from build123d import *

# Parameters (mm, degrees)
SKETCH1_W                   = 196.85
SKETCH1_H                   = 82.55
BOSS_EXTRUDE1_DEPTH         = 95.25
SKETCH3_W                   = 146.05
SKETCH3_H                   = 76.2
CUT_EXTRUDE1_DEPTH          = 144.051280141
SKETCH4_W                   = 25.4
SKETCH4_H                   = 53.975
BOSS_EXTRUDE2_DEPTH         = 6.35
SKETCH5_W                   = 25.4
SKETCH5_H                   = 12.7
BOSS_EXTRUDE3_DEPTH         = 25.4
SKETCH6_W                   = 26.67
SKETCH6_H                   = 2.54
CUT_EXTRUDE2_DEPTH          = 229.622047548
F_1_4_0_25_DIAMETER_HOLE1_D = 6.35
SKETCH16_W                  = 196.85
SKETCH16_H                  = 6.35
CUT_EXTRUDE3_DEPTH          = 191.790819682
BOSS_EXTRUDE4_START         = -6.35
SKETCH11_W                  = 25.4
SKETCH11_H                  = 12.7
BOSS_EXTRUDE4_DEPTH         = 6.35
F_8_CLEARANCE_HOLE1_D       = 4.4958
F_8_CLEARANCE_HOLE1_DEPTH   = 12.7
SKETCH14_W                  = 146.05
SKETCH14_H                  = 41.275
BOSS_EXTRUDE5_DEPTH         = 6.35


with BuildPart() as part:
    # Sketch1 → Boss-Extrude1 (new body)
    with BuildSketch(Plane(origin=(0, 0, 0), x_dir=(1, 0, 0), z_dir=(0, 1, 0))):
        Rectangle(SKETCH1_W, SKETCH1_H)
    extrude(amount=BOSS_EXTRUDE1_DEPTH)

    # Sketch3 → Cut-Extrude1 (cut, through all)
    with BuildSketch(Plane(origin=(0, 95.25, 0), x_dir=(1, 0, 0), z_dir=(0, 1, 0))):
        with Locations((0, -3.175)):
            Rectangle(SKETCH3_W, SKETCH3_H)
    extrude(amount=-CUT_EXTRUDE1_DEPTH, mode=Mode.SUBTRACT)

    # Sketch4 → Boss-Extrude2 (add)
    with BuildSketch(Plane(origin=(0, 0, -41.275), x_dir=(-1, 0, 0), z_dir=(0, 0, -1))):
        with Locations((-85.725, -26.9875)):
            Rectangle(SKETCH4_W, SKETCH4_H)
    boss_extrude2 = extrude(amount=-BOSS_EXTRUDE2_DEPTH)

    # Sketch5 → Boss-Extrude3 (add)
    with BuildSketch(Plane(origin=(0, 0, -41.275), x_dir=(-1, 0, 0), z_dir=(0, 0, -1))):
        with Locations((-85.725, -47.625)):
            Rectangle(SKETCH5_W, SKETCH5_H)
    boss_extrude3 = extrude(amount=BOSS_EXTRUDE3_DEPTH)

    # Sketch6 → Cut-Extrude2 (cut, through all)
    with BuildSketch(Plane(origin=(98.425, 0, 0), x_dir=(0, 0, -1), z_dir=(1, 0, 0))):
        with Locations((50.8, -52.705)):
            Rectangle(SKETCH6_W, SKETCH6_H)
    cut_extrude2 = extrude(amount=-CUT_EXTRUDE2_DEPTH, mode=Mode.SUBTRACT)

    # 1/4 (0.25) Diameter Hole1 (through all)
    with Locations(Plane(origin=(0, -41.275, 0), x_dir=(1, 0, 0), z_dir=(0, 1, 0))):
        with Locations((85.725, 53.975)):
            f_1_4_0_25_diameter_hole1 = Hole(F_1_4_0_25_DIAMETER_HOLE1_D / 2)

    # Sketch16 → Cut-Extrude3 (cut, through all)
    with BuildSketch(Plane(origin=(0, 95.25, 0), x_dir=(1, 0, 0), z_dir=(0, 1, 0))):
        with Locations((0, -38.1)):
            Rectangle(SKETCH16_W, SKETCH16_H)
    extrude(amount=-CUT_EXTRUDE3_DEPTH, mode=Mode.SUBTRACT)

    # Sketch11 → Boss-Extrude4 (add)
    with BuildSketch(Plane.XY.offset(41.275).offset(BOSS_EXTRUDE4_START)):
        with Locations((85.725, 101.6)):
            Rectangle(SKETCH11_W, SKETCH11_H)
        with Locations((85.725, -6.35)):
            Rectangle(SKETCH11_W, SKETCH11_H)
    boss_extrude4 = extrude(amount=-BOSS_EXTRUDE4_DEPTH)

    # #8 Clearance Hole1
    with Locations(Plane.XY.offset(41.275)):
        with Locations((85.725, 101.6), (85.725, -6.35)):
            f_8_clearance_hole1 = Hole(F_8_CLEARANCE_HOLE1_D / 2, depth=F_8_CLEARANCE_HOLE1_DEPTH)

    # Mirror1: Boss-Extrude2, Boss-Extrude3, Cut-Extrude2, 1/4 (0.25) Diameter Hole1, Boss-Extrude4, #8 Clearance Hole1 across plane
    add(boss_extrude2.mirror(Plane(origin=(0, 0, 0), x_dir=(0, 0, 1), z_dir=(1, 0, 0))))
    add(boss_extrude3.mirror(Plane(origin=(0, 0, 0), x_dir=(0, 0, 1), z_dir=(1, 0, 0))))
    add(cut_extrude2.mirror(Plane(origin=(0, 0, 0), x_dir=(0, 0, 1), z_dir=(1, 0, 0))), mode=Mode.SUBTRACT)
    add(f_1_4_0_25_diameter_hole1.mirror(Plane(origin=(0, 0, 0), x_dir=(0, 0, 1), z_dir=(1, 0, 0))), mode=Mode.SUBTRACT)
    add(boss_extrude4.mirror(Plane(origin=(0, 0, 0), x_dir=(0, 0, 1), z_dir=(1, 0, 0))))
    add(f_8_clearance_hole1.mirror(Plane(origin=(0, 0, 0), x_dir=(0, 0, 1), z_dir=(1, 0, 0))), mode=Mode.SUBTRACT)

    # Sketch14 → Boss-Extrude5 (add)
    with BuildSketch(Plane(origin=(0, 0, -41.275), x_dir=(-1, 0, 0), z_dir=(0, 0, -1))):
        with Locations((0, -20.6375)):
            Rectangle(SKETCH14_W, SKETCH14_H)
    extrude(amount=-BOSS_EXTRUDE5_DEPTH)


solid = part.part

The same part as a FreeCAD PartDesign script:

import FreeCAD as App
import Part
import Sketcher
from FreeCAD import Vector
Q = App.Units.Quantity

doc = App.newDocument("Part")
body = doc.addObject("PartDesign::Body", "Body")

sketch1 = doc.addObject("Sketcher::SketchObject", "Sketch")
body.addObject(sketch1)
sketch1.AttachmentSupport = (doc.XZ_Plane, [""])
sketch1.MapMode = "FlatFace"
sketch1.addGeometry(Part.LineSegment(Vector(-98, -41, 0), Vector(-98, 41, 0)), False)
sketch1.addGeometry(Part.LineSegment(Vector(-98, 41, 0), Vector(98, 41, 0)), False)
sketch1.addGeometry(Part.LineSegment(Vector(98, 41, 0), Vector(98, -41, 0)), False)
sketch1.addGeometry(Part.LineSegment(Vector(98, -41, 0), Vector(-98, -41, 0)), False)
sketch1.addConstraint(Sketcher.Constraint("Coincident", 0, 2, 1, 1))
sketch1.addConstraint(Sketcher.Constraint("Coincident", 1, 2, 2, 1))
sketch1.addConstraint(Sketcher.Constraint("Coincident", 2, 2, 3, 1))
sketch1.addConstraint(Sketcher.Constraint("Coincident", 3, 2, 0, 1))
sketch1.addConstraint(Sketcher.Constraint("Vertical", 0))
sketch1.addConstraint(Sketcher.Constraint("Horizontal", 1))
sketch1.addConstraint(Sketcher.Constraint("Vertical", 2))
sketch1.addConstraint(Sketcher.Constraint("Horizontal", 3))
sketch1.addConstraint(Sketcher.Constraint("Symmetric", 0, 2, 2, 2, -1, 1))
sketch1.addConstraint(Sketcher.Constraint("DistanceX", 1, 1, 1, 2, Q("7.75 in")))
sketch1.addConstraint(Sketcher.Constraint("DistanceY", 0, 1, 0, 2, Q("3.25 in")))
pad1 = doc.addObject("PartDesign::Pad", "Pad")
body.addObject(pad1)
pad1.Profile = sketch1
pad1.Length = Q("3.75 in")
pad1.Reversed = True

sketch2 = doc.addObject("Sketcher::SketchObject", "Sketch001")
body.addObject(sketch2)
sketch2.AttachmentSupport = (doc.XZ_Plane, [""])
sketch2.MapMode = "FlatFace"
sketch2.AttachmentOffset = App.Placement(Vector(0, 0, -3.75 * 25.4), App.Rotation())
sketch2.addGeometry(Part.LineSegment(Vector(-73, -35, 0), Vector(-73, 41, 0)), False)
sketch2.addGeometry(Part.LineSegment(Vector(-73, 41, 0), Vector(73, 41, 0)), False)
sketch2.addGeometry(Part.LineSegment(Vector(73, 41, 0), Vector(73, -35, 0)), False)
sketch2.addGeometry(Part.LineSegment(Vector(73, -35, 0), Vector(-73, -35, 0)), False)
sketch2.addConstraint(Sketcher.Constraint("Coincident", 0, 2, 1, 1))
sketch2.addConstraint(Sketcher.Constraint("Coincident", 1, 2, 2, 1))
sketch2.addConstraint(Sketcher.Constraint("Coincident", 2, 2, 3, 1))
sketch2.addConstraint(Sketcher.Constraint("Coincident", 3, 2, 0, 1))
sketch2.addConstraint(Sketcher.Constraint("Vertical", 0))
sketch2.addConstraint(Sketcher.Constraint("Horizontal", 1))
sketch2.addConstraint(Sketcher.Constraint("Vertical", 2))
sketch2.addConstraint(Sketcher.Constraint("Horizontal", 3))
sketch2.addConstraint(Sketcher.Constraint("DistanceY", 0, 1, 0, 2, Q("3 in")))
sketch2.addConstraint(Sketcher.Constraint("DistanceX", 1, 1, 1, 2, Q("5.75 in")))
sketch2.addConstraint(Sketcher.Constraint("DistanceX", 0, 2, -1, 1, Q("2.875 in")))
sketch2.addConstraint(Sketcher.Constraint("DistanceY", -1, 1, 0, 2, Q("1.625 in")))
pocket1 = doc.addObject("PartDesign::Pocket", "Pocket")
body.addObject(pocket1)
pocket1.Profile = sketch2
pocket1.Type = "ThroughAll"
pocket1.Reversed = True

sketch3 = doc.addObject("Sketcher::SketchObject", "Sketch002")
body.addObject(sketch3)
sketch3.AttachmentSupport = (doc.XY_Plane, [""])
sketch3.MapMode = "FlatFace"
sketch3.AttachmentOffset = App.Placement(Vector(0, 0, -1.625 * 25.4), App.Rotation())
sketch3.addGeometry(Part.LineSegment(Vector(98, 0, 0), Vector(98, -54, 0)), False)
sketch3.addGeometry(Part.LineSegment(Vector(98, -54, 0), Vector(73, -54, 0)), False)
sketch3.addGeometry(Part.LineSegment(Vector(73, -54, 0), Vector(73, 0, 0)), False)
sketch3.addGeometry(Part.LineSegment(Vector(73, 0, 0), Vector(98, 0, 0)), False)
sketch3.addConstraint(Sketcher.Constraint("Coincident", 0, 2, 1, 1))
sketch3.addConstraint(Sketcher.Constraint("Coincident", 1, 2, 2, 1))
sketch3.addConstraint(Sketcher.Constraint("Coincident", 2, 2, 3, 1))
sketch3.addConstraint(Sketcher.Constraint("Coincident", 3, 2, 0, 1))
sketch3.addConstraint(Sketcher.Constraint("Vertical", 0))
sketch3.addConstraint(Sketcher.Constraint("Horizontal", 1))
sketch3.addConstraint(Sketcher.Constraint("Vertical", 2))
sketch3.addConstraint(Sketcher.Constraint("Horizontal", 3))
sketch3.addConstraint(Sketcher.Constraint("PointOnObject", 2, 2, -1))
sketch3.addConstraint(Sketcher.Constraint("DistanceX", 1, 2, 1, 1, Q("1 in")))
sketch3.addConstraint(Sketcher.Constraint("DistanceY", 0, 2, 0, 1, Q("2.125 in")))
sketch3.addConstraint(Sketcher.Constraint("DistanceX", -1, 1, 0, 2, Q("3.875 in")))
pad2 = doc.addObject("PartDesign::Pad", "Pad001")
body.addObject(pad2)
pad2.Profile = sketch3
pad2.Length = Q("0.25 in")

sketch4 = doc.addObject("Sketcher::SketchObject", "Sketch003")
body.addObject(sketch4)
sketch4.AttachmentSupport = (doc.XY_Plane, [""])
sketch4.MapMode = "FlatFace"
sketch4.AttachmentOffset = App.Placement(Vector(0, 0, -1.625 * 25.4), App.Rotation())
sketch4.addGeometry(Part.LineSegment(Vector(98, -41, 0), Vector(98, -54, 0)), False)
sketch4.addGeometry(Part.LineSegment(Vector(98, -54, 0), Vector(73, -54, 0)), False)
sketch4.addGeometry(Part.LineSegment(Vector(73, -54, 0), Vector(73, -41, 0)), False)
sketch4.addGeometry(Part.LineSegment(Vector(73, -41, 0), Vector(98, -41, 0)), False)
sketch4.addConstraint(Sketcher.Constraint("Coincident", 0, 2, 1, 1))
sketch4.addConstraint(Sketcher.Constraint("Coincident", 1, 2, 2, 1))
sketch4.addConstraint(Sketcher.Constraint("Coincident", 2, 2, 3, 1))
sketch4.addConstraint(Sketcher.Constraint("Coincident", 3, 2, 0, 1))
sketch4.addConstraint(Sketcher.Constraint("Vertical", 0))
sketch4.addConstraint(Sketcher.Constraint("Horizontal", 1))
sketch4.addConstraint(Sketcher.Constraint("Vertical", 2))
sketch4.addConstraint(Sketcher.Constraint("Horizontal", 3))
sketch4.addConstraint(Sketcher.Constraint("DistanceX", 1, 2, 1, 1, Q("1 in")))
sketch4.addConstraint(Sketcher.Constraint("DistanceY", 0, 2, 0, 1, Q("0.5 in")))
sketch4.addConstraint(Sketcher.Constraint("DistanceX", -1, 1, 0, 2, Q("3.875 in")))
sketch4.addConstraint(Sketcher.Constraint("DistanceY", 0, 2, -1, 1, Q("2.125 in")))
pad3 = doc.addObject("PartDesign::Pad", "Pad002")
body.addObject(pad3)
pad3.Profile = sketch4
pad3.Length = Q("1 in")
pad3.Reversed = True

sketch5 = doc.addObject("Sketcher::SketchObject", "Sketch004")
body.addObject(sketch5)
sketch5.AttachmentSupport = (doc.YZ_Plane, [""])
sketch5.MapMode = "FlatFace"
sketch5.AttachmentOffset = App.Placement(Vector(0, 0, 3.875 * 25.4), App.Rotation())
sketch5.addGeometry(Part.LineSegment(Vector(-51.4, -37.5, 0), Vector(-54, -37.5, 0)), False)
sketch5.addGeometry(Part.LineSegment(Vector(-54, -37.5, 0), Vector(-54, -64.1, 0)), False)
sketch5.addGeometry(Part.LineSegment(Vector(-54, -64.1, 0), Vector(-51.4, -64.1, 0)), False)
sketch5.addGeometry(Part.LineSegment(Vector(-51.4, -64.1, 0), Vector(-51.4, -37.5, 0)), False)
sketch5.addConstraint(Sketcher.Constraint("Coincident", 0, 2, 1, 1))
sketch5.addConstraint(Sketcher.Constraint("Coincident", 1, 2, 2, 1))
sketch5.addConstraint(Sketcher.Constraint("Coincident", 2, 2, 3, 1))
sketch5.addConstraint(Sketcher.Constraint("Coincident", 3, 2, 0, 1))
sketch5.addConstraint(Sketcher.Constraint("Horizontal", 0))
sketch5.addConstraint(Sketcher.Constraint("Vertical", 1))
sketch5.addConstraint(Sketcher.Constraint("Horizontal", 2))
sketch5.addConstraint(Sketcher.Constraint("Vertical", 3))
sketch5.addConstraint(Sketcher.Constraint("DistanceX", 0, 2, 0, 1, Q("0.1 in")))
sketch5.addConstraint(Sketcher.Constraint("DistanceY", 1, 2, 1, 1, Q("1.05 in")))
sketch5.addConstraint(Sketcher.Constraint("DistanceX", 0, 2, -1, 1, Q("2.125 in")))
sketch5.addConstraint(Sketcher.Constraint("DistanceY", 0, 2, -1, 1, Q("1.475 in")))
pocket2 = doc.addObject("PartDesign::Pocket", "Pocket001")
body.addObject(pocket2)
pocket2.Profile = sketch5
pocket2.Type = "ThroughAll"

sketch6 = doc.addObject("Sketcher::SketchObject", "Sketch005")
body.addObject(sketch6)
sketch6.AttachmentSupport = (doc.XZ_Plane, [""])
sketch6.MapMode = "FlatFace"
sketch6.AttachmentOffset = App.Placement(Vector(0, 0, 1.625 * 25.4), App.Rotation())
sketch6.addGeometry(Part.Circle(Vector(85.7, -54, 0), Vector(0, 0, 1), 3.2), False)
sketch6.addConstraint(Sketcher.Constraint("Diameter", 0, Q("0.25 in")))
sketch6.addConstraint(Sketcher.Constraint("DistanceX", -1, 1, 0, 3, Q("3.375 in")))
sketch6.addConstraint(Sketcher.Constraint("DistanceY", 0, 3, -1, 1, Q("2.125 in")))
doc.recompute()
hole = doc.addObject("PartDesign::Hole", "Hole")
body.addObject(hole)
hole.Profile = sketch6
hole.ThreadType = "None"
hole.Diameter = Q("0.25 in")
hole.DepthType = "ThroughAll"
hole.Reversed = True

sketch7 = doc.addObject("Sketcher::SketchObject", "Sketch006")
body.addObject(sketch7)
sketch7.AttachmentSupport = (doc.XZ_Plane, [""])
sketch7.MapMode = "FlatFace"
sketch7.AttachmentOffset = App.Placement(Vector(0, 0, -3.75 * 25.4), App.Rotation())
sketch7.addGeometry(Part.LineSegment(Vector(-98, 35, 0), Vector(-98, 41, 0)), False)
sketch7.addGeometry(Part.LineSegment(Vector(-98, 41, 0), Vector(98, 41, 0)), False)
sketch7.addGeometry(Part.LineSegment(Vector(98, 41, 0), Vector(98, 35, 0)), False)
sketch7.addGeometry(Part.LineSegment(Vector(98, 35, 0), Vector(-98, 35, 0)), False)
sketch7.addConstraint(Sketcher.Constraint("Coincident", 0, 2, 1, 1))
sketch7.addConstraint(Sketcher.Constraint("Coincident", 1, 2, 2, 1))
sketch7.addConstraint(Sketcher.Constraint("Coincident", 2, 2, 3, 1))
sketch7.addConstraint(Sketcher.Constraint("Coincident", 3, 2, 0, 1))
sketch7.addConstraint(Sketcher.Constraint("Vertical", 0))
sketch7.addConstraint(Sketcher.Constraint("Horizontal", 1))
sketch7.addConstraint(Sketcher.Constraint("Vertical", 2))
sketch7.addConstraint(Sketcher.Constraint("Horizontal", 3))
sketch7.addConstraint(Sketcher.Constraint("DistanceX", 1, 1, 1, 2, Q("7.75 in")))
sketch7.addConstraint(Sketcher.Constraint("DistanceY", 0, 1, 0, 2, Q("0.25 in")))
sketch7.addConstraint(Sketcher.Constraint("DistanceX", 0, 2, -1, 1, Q("3.875 in")))
sketch7.addConstraint(Sketcher.Constraint("DistanceY", -1, 1, 0, 2, Q("1.625 in")))
pocket3 = doc.addObject("PartDesign::Pocket", "Pocket002")
body.addObject(pocket3)
pocket3.Profile = sketch7
pocket3.Type = "ThroughAll"
pocket3.Reversed = True

sketch8 = doc.addObject("Sketcher::SketchObject", "Sketch007")
body.addObject(sketch8)
sketch8.AttachmentSupport = (doc.XY_Plane, [""])
sketch8.MapMode = "FlatFace"
sketch8.AttachmentOffset = App.Placement(Vector(0, 0, 1.375 * 25.4), App.Rotation())
sketch8.addGeometry(Part.LineSegment(Vector(73, 108, 0), Vector(73, 95, 0)), False)
sketch8.addGeometry(Part.LineSegment(Vector(73, 95, 0), Vector(98, 95, 0)), False)
sketch8.addGeometry(Part.LineSegment(Vector(98, 95, 0), Vector(98, 108, 0)), False)
sketch8.addGeometry(Part.LineSegment(Vector(98, 108, 0), Vector(73, 108, 0)), False)
sketch8.addGeometry(Part.LineSegment(Vector(73, 0, 0), Vector(73, -13, 0)), False)
sketch8.addGeometry(Part.LineSegment(Vector(73, -13, 0), Vector(98, -13, 0)), False)
sketch8.addGeometry(Part.LineSegment(Vector(98, -13, 0), Vector(98, 0, 0)), False)
sketch8.addGeometry(Part.LineSegment(Vector(98, 0, 0), Vector(73, 0, 0)), False)
sketch8.addConstraint(Sketcher.Constraint("Coincident", 0, 2, 1, 1))
sketch8.addConstraint(Sketcher.Constraint("Coincident", 1, 2, 2, 1))
sketch8.addConstraint(Sketcher.Constraint("Coincident", 2, 2, 3, 1))
sketch8.addConstraint(Sketcher.Constraint("Coincident", 3, 2, 0, 1))
sketch8.addConstraint(Sketcher.Constraint("Coincident", 4, 2, 5, 1))
sketch8.addConstraint(Sketcher.Constraint("Coincident", 5, 2, 6, 1))
sketch8.addConstraint(Sketcher.Constraint("Coincident", 6, 2, 7, 1))
sketch8.addConstraint(Sketcher.Constraint("Coincident", 7, 2, 4, 1))
sketch8.addConstraint(Sketcher.Constraint("Vertical", 0))
sketch8.addConstraint(Sketcher.Constraint("Horizontal", 1))
sketch8.addConstraint(Sketcher.Constraint("Vertical", 2))
sketch8.addConstraint(Sketcher.Constraint("Horizontal", 3))
sketch8.addConstraint(Sketcher.Constraint("Vertical", 4))
sketch8.addConstraint(Sketcher.Constraint("Horizontal", 5))
sketch8.addConstraint(Sketcher.Constraint("Vertical", 6))
sketch8.addConstraint(Sketcher.Constraint("Horizontal", 7))
sketch8.addConstraint(Sketcher.Constraint("PointOnObject", 6, 2, -1))
sketch8.addConstraint(Sketcher.Constraint("Vertical", 3, 2, 4, 2))
sketch8.addConstraint(Sketcher.Constraint("Vertical", 2, 2, 5, 2))
sketch8.addConstraint(Sketcher.Constraint("Equal", 2, 4))
sketch8.addConstraint(Sketcher.Constraint("DistanceX", 1, 1, 1, 2, Q("1 in")))
sketch8.addConstraint(Sketcher.Constraint("DistanceY", 0, 2, 0, 1, Q("0.5 in")))
sketch8.addConstraint(Sketcher.Constraint("DistanceY", -1, 1, 0, 2, Q("3.75 in")))
sketch8.addConstraint(Sketcher.Constraint("DistanceX", -1, 1, 0, 2, Q("2.875 in")))
pad4 = doc.addObject("PartDesign::Pad", "Pad003")
body.addObject(pad4)
pad4.Profile = sketch8
pad4.Length = Q("0.25 in")
pad4.Reversed = True

sketch9 = doc.addObject("Sketcher::SketchObject", "Sketch008")
body.addObject(sketch9)
sketch9.AttachmentSupport = (doc.XY_Plane, [""])
sketch9.MapMode = "FlatFace"
sketch9.AttachmentOffset = App.Placement(Vector(0, 0, 1.625 * 25.4), App.Rotation())
sketch9.addGeometry(Part.Circle(Vector(85.7, 101.6, 0), Vector(0, 0, 1), 2.2), False)
sketch9.addGeometry(Part.Circle(Vector(85.7, -6.3, 0), Vector(0, 0, 1), 2.2), False)
sketch9.addConstraint(Sketcher.Constraint("Equal", 0, 1))
sketch9.addConstraint(Sketcher.Constraint("Vertical", 0, 3, 1, 3))
sketch9.addConstraint(Sketcher.Constraint("Diameter", 0, Q("0.177 in")))
sketch9.addConstraint(Sketcher.Constraint("DistanceY", -1, 1, 0, 3, Q("4 in")))
sketch9.addConstraint(Sketcher.Constraint("DistanceY", 1, 3, -1, 1, Q("0.25 in")))
sketch9.addConstraint(Sketcher.Constraint("DistanceX", -1, 1, 0, 3, Q("3.375 in")))
doc.recompute()
hole2 = doc.addObject("PartDesign::Hole", "Hole001")
body.addObject(hole2)
hole2.Profile = sketch9
hole2.ThreadType = "None"
hole2.Diameter = Q("0.177 in")
hole2.DepthType = "Dimension"
hole2.Depth = Q("0.5 in")
hole2.DrillPoint = "Flat"
doc.recompute()

mirrored = doc.addObject("PartDesign::Mirrored", "Mirrored")
body.addObject(mirrored)
mirrored.Originals = [pad2, pad3, pocket2, hole, pad4, hole2]
mirrored.MirrorPlane = (doc.YZ_Plane, [""])
body.Tip = mirrored

sketch10 = doc.addObject("Sketcher::SketchObject", "Sketch009")
body.addObject(sketch10)
sketch10.AttachmentSupport = (doc.XY_Plane, [""])
sketch10.MapMode = "FlatFace"
sketch10.AttachmentOffset = App.Placement(Vector(0, 0, -1.625 * 25.4), App.Rotation())
sketch10.addGeometry(Part.LineSegment(Vector(73, 0, 0), Vector(73, -41, 0)), False)
sketch10.addGeometry(Part.LineSegment(Vector(73, -41, 0), Vector(-73, -41, 0)), False)
sketch10.addGeometry(Part.LineSegment(Vector(-73, -41, 0), Vector(-73, 0, 0)), False)
sketch10.addGeometry(Part.LineSegment(Vector(-73, 0, 0), Vector(73, 0, 0)), False)
sketch10.addConstraint(Sketcher.Constraint("Coincident", 0, 2, 1, 1))
sketch10.addConstraint(Sketcher.Constraint("Coincident", 1, 2, 2, 1))
sketch10.addConstraint(Sketcher.Constraint("Coincident", 2, 2, 3, 1))
sketch10.addConstraint(Sketcher.Constraint("Coincident", 3, 2, 0, 1))
sketch10.addConstraint(Sketcher.Constraint("Vertical", 0))
sketch10.addConstraint(Sketcher.Constraint("Horizontal", 1))
sketch10.addConstraint(Sketcher.Constraint("Vertical", 2))
sketch10.addConstraint(Sketcher.Constraint("Horizontal", 3))
sketch10.addConstraint(Sketcher.Constraint("Symmetric", 2, 2, 3, 2, -1, 1))
sketch10.addConstraint(Sketcher.Constraint("DistanceX", 1, 2, 1, 1, Q("5.75 in")))
sketch10.addConstraint(Sketcher.Constraint("DistanceY", 0, 2, 0, 1, Q("1.625 in")))
pad5 = doc.addObject("PartDesign::Pad", "Pad004")
body.addObject(pad5)
pad5.Profile = sketch10
pad5.Length = Q("0.25 in")

doc.recompute()
